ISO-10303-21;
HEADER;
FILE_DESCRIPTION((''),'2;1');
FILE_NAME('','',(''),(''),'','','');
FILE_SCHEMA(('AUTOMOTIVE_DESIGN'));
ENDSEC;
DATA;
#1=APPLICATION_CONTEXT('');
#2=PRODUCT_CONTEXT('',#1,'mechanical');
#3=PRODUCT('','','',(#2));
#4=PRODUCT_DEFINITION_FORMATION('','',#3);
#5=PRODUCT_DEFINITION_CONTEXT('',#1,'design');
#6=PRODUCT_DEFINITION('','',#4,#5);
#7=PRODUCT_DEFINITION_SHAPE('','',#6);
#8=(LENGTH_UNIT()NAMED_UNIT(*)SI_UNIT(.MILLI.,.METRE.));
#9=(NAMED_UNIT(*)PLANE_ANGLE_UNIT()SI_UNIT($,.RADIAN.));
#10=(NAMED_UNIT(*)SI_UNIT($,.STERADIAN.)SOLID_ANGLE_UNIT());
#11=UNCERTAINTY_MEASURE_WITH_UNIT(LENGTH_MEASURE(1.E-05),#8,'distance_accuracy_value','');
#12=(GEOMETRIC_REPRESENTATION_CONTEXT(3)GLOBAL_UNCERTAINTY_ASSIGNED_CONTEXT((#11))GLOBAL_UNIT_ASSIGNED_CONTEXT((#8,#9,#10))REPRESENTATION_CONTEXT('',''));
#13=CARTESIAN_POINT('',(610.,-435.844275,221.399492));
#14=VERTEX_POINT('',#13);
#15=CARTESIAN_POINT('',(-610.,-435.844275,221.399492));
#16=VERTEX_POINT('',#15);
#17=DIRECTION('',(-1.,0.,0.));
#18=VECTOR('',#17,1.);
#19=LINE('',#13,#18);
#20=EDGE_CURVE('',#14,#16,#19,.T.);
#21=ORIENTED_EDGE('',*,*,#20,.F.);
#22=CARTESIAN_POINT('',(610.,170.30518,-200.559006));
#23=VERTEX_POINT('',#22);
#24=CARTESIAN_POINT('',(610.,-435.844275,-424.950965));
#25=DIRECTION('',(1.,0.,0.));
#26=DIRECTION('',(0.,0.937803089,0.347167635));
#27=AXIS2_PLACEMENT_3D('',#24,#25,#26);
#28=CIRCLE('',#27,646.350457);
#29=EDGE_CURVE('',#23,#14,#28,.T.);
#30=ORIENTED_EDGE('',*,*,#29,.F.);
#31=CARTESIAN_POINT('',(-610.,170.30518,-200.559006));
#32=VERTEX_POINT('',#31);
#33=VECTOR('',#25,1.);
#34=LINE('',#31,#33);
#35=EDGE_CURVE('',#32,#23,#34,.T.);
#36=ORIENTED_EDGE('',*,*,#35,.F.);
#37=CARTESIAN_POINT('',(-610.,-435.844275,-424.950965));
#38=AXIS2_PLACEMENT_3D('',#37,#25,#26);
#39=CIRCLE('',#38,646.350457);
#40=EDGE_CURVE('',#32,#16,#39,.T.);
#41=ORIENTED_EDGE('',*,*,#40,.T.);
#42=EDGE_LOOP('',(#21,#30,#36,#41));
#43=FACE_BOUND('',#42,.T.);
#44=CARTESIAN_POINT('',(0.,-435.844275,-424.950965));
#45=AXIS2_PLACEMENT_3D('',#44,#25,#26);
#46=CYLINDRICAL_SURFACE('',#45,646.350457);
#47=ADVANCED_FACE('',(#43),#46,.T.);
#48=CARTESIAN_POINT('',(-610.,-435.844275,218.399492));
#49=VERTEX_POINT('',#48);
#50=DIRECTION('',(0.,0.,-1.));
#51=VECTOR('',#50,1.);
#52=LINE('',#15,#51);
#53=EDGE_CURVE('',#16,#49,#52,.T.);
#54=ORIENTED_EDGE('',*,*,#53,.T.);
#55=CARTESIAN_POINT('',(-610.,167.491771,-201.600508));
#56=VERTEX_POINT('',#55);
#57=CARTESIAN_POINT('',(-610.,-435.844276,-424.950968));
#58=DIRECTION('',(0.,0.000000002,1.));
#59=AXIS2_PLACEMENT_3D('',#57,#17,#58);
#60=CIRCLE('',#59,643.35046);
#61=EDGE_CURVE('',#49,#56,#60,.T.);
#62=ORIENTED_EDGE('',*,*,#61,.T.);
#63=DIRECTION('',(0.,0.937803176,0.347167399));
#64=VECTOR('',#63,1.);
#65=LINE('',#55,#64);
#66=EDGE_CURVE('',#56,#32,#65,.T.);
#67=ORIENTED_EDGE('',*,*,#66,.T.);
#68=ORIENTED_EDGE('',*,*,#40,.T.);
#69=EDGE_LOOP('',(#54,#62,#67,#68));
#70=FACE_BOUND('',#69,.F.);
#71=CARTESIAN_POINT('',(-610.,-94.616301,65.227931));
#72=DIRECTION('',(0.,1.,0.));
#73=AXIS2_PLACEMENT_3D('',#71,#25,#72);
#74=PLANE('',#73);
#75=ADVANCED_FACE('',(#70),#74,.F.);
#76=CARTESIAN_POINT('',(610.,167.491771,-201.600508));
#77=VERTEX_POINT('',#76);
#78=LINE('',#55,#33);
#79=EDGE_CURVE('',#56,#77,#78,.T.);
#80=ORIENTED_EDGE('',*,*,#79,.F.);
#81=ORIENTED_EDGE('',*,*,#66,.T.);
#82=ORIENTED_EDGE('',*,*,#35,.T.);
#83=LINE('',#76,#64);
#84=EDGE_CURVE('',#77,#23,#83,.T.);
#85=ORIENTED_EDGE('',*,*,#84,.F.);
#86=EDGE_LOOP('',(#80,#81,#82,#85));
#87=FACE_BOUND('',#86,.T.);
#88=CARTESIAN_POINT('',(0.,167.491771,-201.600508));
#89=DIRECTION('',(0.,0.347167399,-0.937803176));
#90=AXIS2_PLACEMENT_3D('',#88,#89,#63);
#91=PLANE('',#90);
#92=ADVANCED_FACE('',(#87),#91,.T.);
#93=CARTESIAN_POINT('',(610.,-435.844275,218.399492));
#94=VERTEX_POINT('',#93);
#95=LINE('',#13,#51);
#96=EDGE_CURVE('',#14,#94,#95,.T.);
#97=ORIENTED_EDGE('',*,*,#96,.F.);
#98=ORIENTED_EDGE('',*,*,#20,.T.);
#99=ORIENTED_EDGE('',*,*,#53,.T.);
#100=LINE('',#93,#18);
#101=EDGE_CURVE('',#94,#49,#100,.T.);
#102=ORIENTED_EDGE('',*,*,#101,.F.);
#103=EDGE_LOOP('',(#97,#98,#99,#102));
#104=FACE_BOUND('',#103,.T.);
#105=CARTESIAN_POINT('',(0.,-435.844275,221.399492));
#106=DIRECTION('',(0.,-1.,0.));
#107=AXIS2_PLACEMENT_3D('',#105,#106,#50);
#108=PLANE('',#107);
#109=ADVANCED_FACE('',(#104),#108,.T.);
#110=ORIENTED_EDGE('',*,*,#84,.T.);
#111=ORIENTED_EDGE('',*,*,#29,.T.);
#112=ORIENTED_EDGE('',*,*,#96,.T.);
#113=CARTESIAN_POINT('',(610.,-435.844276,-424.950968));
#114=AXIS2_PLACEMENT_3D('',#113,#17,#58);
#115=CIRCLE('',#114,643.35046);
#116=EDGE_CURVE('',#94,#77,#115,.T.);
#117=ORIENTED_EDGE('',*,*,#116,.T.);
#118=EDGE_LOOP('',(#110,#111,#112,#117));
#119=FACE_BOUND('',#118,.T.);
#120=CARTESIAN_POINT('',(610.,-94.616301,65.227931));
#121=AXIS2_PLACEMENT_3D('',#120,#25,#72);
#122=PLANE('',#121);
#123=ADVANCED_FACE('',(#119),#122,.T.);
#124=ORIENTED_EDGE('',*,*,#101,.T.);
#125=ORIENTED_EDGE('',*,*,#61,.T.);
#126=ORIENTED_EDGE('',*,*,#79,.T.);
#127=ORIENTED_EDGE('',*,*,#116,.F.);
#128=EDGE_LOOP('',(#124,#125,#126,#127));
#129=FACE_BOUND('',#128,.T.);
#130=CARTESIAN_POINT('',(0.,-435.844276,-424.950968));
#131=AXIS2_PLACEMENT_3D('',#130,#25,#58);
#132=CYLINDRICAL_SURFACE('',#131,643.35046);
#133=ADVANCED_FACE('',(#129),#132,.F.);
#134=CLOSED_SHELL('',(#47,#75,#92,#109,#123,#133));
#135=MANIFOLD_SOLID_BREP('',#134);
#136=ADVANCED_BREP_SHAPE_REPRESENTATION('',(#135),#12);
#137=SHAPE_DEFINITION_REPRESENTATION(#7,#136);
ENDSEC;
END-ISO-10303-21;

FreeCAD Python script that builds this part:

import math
import FreeCAD as App
import Part
import Sketcher

V = App.Vector

doc = App.newDocument("Part")
params = doc.addObject("Spreadsheet::Sheet", "Params")
for row, (alias, value) in enumerate([
    ("sketch1_height", "3 mm"),
    ("pad1_length", "1220 mm"),
], start=1):
    params.set(f"A{row}", alias)
    params.set(f"B{row}", "=" + value)
    params.setAlias(f"B{row}", alias)

body = doc.addObject("PartDesign::Body", "Body")

# Sketch on YZ plane
sketch1 = body.newObject("Sketcher::SketchObject", "Sketch")
sketch1.AttachmentSupport = (doc.getObject("YZ_Plane"), [""])
sketch1.MapMode = "FlatFace"
sketch1.addGeometry(Part.ArcOfCircle(Part.Circle(V(-435.8, -425, 0), V(0, 0, 1), 643.4), math.radians(20), math.radians(90)), False)
sketch1.addGeometry(Part.LineSegment(V(167.5, -201.6, 0), V(170.3, -200.6, 0)), False)
sketch1.addGeometry(Part.ArcOfCircle(Part.Circle(V(-435.8, -425, 0), V(0, 0, 1), 646.4), math.radians(20), math.radians(90)), False)
sketch1.addGeometry(Part.LineSegment(V(-435.8, 221.4, 0), V(-435.8, 218.4, 0)), False)
sketch1.addConstraint(Sketcher.Constraint("Coincident", 0, 1, 1, 1))
sketch1.addConstraint(Sketcher.Constraint("Coincident", 1, 2, 2, 1))
sketch1.addConstraint(Sketcher.Constraint("Coincident", 2, 2, 3, 1))
sketch1.addConstraint(Sketcher.Constraint("Coincident", 3, 2, 0, 2))
sketch1.addConstraint(Sketcher.Constraint("Vertical", 3))
sketch1.addConstraint(Sketcher.Constraint("Coincident", 2, 3, 0, 3))
sketch1.addConstraint(Sketcher.Constraint("DistanceY", 3, 2, 3, 1, 3.0))
sketch1.addConstraint(Sketcher.Constraint("Radius", 0, 643.35046))
sketch1.addConstraint(Sketcher.Constraint("DistanceY", 0, 1, 1, 2, 1.041502))
sketch1.addConstraint(Sketcher.Constraint("DistanceY", 1, 2, 2, 2, 421.958498))
sketch1.addConstraint(Sketcher.Constraint("DistanceX", -1, 1, 0, 1, 167.491771))
sketch1.addConstraint(Sketcher.Constraint("DistanceY", 0, 3, -1, 1, 424.950968))
sketch1.addConstraint(Sketcher.Constraint("DistanceX", 3, 2, -1, 1, 435.844275))
sketch1.setExpression("Constraints[6]", "Params.sketch1_height")
pad1 = body.newObject("PartDesign::Pad", "Pad")
pad1.Profile = sketch1
pad1.setExpression("Length", "Params.pad1_length")
pad1.Midplane = True

doc.recompute()
